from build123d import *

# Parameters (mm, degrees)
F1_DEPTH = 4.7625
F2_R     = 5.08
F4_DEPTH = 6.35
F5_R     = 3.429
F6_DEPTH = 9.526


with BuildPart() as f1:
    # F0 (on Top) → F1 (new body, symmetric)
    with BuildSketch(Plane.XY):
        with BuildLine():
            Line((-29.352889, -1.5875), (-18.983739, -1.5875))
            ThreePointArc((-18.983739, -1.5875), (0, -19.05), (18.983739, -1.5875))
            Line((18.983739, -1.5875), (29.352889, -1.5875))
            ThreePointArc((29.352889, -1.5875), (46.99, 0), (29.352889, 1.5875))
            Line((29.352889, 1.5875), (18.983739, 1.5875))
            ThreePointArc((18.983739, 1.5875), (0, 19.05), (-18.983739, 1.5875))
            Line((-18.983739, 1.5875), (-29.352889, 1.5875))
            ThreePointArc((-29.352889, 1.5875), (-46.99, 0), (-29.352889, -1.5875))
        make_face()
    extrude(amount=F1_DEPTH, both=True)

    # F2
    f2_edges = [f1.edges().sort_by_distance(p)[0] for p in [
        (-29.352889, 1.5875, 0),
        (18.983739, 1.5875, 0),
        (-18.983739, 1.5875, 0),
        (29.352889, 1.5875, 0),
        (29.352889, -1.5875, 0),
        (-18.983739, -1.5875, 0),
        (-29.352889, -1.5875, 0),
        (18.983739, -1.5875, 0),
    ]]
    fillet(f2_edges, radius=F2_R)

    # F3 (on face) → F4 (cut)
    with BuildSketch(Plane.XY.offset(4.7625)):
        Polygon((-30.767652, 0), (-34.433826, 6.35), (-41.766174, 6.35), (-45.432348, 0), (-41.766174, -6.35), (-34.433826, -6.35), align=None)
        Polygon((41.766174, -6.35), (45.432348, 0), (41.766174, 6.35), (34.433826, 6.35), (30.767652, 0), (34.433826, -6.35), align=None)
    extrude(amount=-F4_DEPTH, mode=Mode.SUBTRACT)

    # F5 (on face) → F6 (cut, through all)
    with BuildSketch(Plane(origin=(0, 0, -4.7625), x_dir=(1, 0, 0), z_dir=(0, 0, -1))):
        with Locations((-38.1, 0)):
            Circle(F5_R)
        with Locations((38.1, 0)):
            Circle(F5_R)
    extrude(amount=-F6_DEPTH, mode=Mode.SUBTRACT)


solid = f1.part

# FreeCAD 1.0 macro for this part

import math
import FreeCAD as App
import Part
import Sketcher
Q = App.Units.Quantity


def edges_at(feature, points):
    """Names of the edges that pass closest to the given points."""
    edges = feature.Shape.Edges
    near = lambda p: min(range(len(edges)), key=lambda i: edges[i].distToShape(Part.Vertex(*p))[0])
    return sorted({f"Edge{near(p) + 1}" for p in points})

doc = App.newDocument("Part")
body = doc.addObject("PartDesign::Body", "Body")

sketch1 = body.newObject("Sketcher::SketchObject", "Sketch")
sketch1.AttachmentSupport = (doc.getObject("XY_Plane"), [""])
sketch1.MapMode = "FlatFace"
sketch1.addGeometry(Part.LineSegment(App.Vector(-29.4, -1.6, 0), App.Vector(-19, -1.6, 0)), False)
sketch1.addGeometry(Part.ArcOfCircle(Part.Circle(App.Vector(0, 0, 0), App.Vector(0, 0, 1), 19.1), math.radians(-175), math.radians(-5)), False)
sketch1.addGeometry(Part.LineSegment(App.Vector(19, -1.6, 0), App.Vector(29.4, -1.6, 0)), False)
sketch1.addGeometry(Part.ArcOfCircle(Part.Circle(App.Vector(38.1, 0, 0), App.Vector(0, 0, 1), 8.9), math.radians(-170), math.radians(170)), False)
sketch1.addGeometry(Part.LineSegment(App.Vector(29.4, 1.6, 0), App.Vector(19, 1.6, 0)), False)
sketch1.addGeometry(Part.ArcOfCircle(Part.Circle(App.Vector(0, 0, 0), App.Vector(0, 0, 1), 19.1), math.radians(5), math.radians(175)), False)
sketch1.addGeometry(Part.LineSegment(App.Vector(-19, 1.6, 0), App.Vector(-29.4, 1.6, 0)), False)
sketch1.addGeometry(Part.ArcOfCircle(Part.Circle(App.Vector(-38.1, 0, 0), App.Vector(0, 0, 1), 8.9), math.radians(10), math.radians(350)), False)
sketch1.addConstraint(Sketcher.Constraint("Coincident", 0, 2, 1, 1))
sketch1.addConstraint(Sketcher.Constraint("Coincident", 1, 2, 2, 1))
sketch1.addConstraint(Sketcher.Constraint("Coincident", 2, 2, 3, 1))
sketch1.addConstraint(Sketcher.Constraint("Coincident", 3, 2, 4, 1))
sketch1.addConstraint(Sketcher.Constraint("Coincident", 4, 2, 5, 1))
sketch1.addConstraint(Sketcher.Constraint("Coincident", 5, 2, 6, 1))
sketch1.addConstraint(Sketcher.Constraint("Coincident", 6, 2, 7, 1))
sketch1.addConstraint(Sketcher.Constraint("Coincident", 7, 2, 0, 1))
sketch1.addConstraint(Sketcher.Constraint("Horizontal", 0))
sketch1.addConstraint(Sketcher.Constraint("Horizontal", 2))
sketch1.addConstraint(Sketcher.Constraint("Horizontal", 4))
sketch1.addConstraint(Sketcher.Constraint("Horizontal", 6))
sketch1.addConstraint(Sketcher.Constraint("Coincident", 1, 3, -1, 1))
sketch1.addConstraint(Sketcher.Constraint("Coincident", 5, 3, -1, 1))
sketch1.addConstraint(Sketcher.Constraint("Equal", 1, 5))
sketch1.addConstraint(Sketcher.Constraint("Equal", 3, 7))
sketch1.addConstraint(Sketcher.Constraint("Symmetric", 3, 3, 7, 3, -1, 1))
sketch1.addConstraint(Sketcher.Constraint("Symmetric", 3, 2, 6, 2, -2))
sketch1.addConstraint(Sketcher.Constraint("Horizontal", 0, 2, 1, 2))
sketch1.addConstraint(Sketcher.Constraint("Vertical", 2, 2, 3, 2))
sketch1.addConstraint(Sketcher.Constraint("Radius", 1, Q("0.75 in")))
sketch1.addConstraint(Sketcher.Constraint("Radius", 3, Q("0.35 in")))
sketch1.addConstraint(Sketcher.Constraint("DistanceX", 7, 3, 3, 3, Q("3 in")))
sketch1.addConstraint(Sketcher.Constraint("DistanceY", 0, 2, -1, 1, Q("0.0625 in")))
pad1 = body.newObject("PartDesign::Pad", "Pad")
pad1.Profile = sketch1
pad1.Length = Q("0.375 in")
pad1.Midplane = True
doc.recompute()

fillet = body.newObject("PartDesign::Fillet", "Fillet")
fillet.Base = (pad1, edges_at(pad1, [
    (-29.353, 1.587, 0),
    (18.984, 1.587, 0),
    (-18.984, 1.587, 0),
    (29.353, 1.587, 0),
    (29.353, -1.587, 0),
    (-18.984, -1.587, 0),
    (-29.353, -1.587, 0),
    (18.984, -1.587, 0),
]))
fillet.Radius = Q("0.2 in")

sketch2 = body.newObject("Sketcher::SketchObject", "Sketch001")
sketch2.AttachmentSupport = (doc.getObject("XY_Plane"), [""])
sketch2.MapMode = "FlatFace"
sketch2.AttachmentOffset = App.Placement(App.Vector(0, 0, 0.1875 * 25.4), App.Rotation())
sketch2.addGeometry(Part.LineSegment(App.Vector(-31, 0, 0), App.Vector(-34, 6, 0)), False)
sketch2.addGeometry(Part.LineSegment(App.Vector(-34, 6, 0), App.Vector(-42, 6, 0)), False)
sketch2.addGeometry(Part.LineSegment(App.Vector(-42, 6, 0), App.Vector(-45, 0, 0)), False)
sketch2.addGeometry(Part.LineSegment(App.Vector(-45, 0, 0), App.Vector(-42, -6, 0)), False)
sketch2.addGeometry(Part.LineSegment(App.Vector(-42, -6, 0), App.Vector(-34, -6, 0)), False)
sketch2.addGeometry(Part.LineSegment(App.Vector(-34, -6, 0), App.Vector(-31, 0, 0)), False)
sketch2.addGeometry(Part.LineSegment(App.Vector(42, -6, 0), App.Vector(45, 0, 0)), False)
sketch2.addGeometry(Part.LineSegment(App.Vector(45, 0, 0), App.Vector(42, 6, 0)), False)
sketch2.addGeometry(Part.LineSegment(App.Vector(42, 6, 0), App.Vector(34, 6, 0)), False)
sketch2.addGeometry(Part.LineSegment(App.Vector(34, 6, 0), App.Vector(31, 0, 0)), False)
sketch2.addGeometry(Part.LineSegment(App.Vector(31, 0, 0), App.Vector(34, -6, 0)), False)
sketch2.addGeometry(Part.LineSegment(App.Vector(34, -6, 0), App.Vector(42, -6, 0)), False)
sketch2.addConstraint(Sketcher.Constraint("Coincident", 0, 2, 1, 1))
sketch2.addConstraint(Sketcher.Constraint("Coincident", 1, 2, 2, 1))
sketch2.addConstraint(Sketcher.Constraint("Coincident", 2, 2, 3, 1))
sketch2.addConstraint(Sketcher.Constraint("Coincident", 3, 2, 4, 1))
sketch2.addConstraint(Sketcher.Constraint("Coincident", 4, 2, 5, 1))
sketch2.addConstraint(Sketcher.Constraint("Coincident", 5, 2, 0, 1))
sketch2.addConstraint(Sketcher.Constraint("Coincident", 6, 2, 7, 1))
sketch2.addConstraint(Sketcher.Constraint("Coincident", 7, 2, 8, 1))
sketch2.addConstraint(Sketcher.Constraint("Coincident", 8, 2, 9, 1))
sketch2.addConstraint(Sketcher.Constraint("Coincident", 9, 2, 10, 1))
sketch2.addConstraint(Sketcher.Constraint("Coincident", 10, 2, 11, 1))
sketch2.addConstraint(Sketcher.Constraint("Coincident", 11, 2, 6, 1))
sketch2.addConstraint(Sketcher.Constraint("Horizontal", 1))
sketch2.addConstraint(Sketcher.Constraint("Horizontal", 4))
sketch2.addConstraint(Sketcher.Constraint("Horizontal", 8))
sketch2.addConstraint(Sketcher.Constraint("Horizontal", 11))
sketch2.addConstraint(Sketcher.Constraint("Symmetric", 2, 2, 6, 2, -1, 1))
sketch2.addConstraint(Sketcher.Constraint("Symmetric", 3, 2, 7, 2, -1, 1))
sketch2.addConstraint(Sketcher.Constraint("Symmetric", 5, 2, 9, 2, -1, 1))
sketch2.addConstraint(Sketcher.Constraint("Symmetric", 0, 2, 10, 2, -1, 1))
sketch2.addConstraint(Sketcher.Constraint("Symmetric", 1, 2, 7, 2, -2))
sketch2.addConstraint(Sketcher.Constraint("PointOnObject", 2, 2, -1))
sketch2.addConstraint(Sketcher.Constraint("PointOnObject", 5, 2, -1))
sketch2.addConstraint(Sketcher.Constraint("Parallel", 0, 3))
sketch2.addConstraint(Sketcher.Constraint("Parallel", 2, 5))
sketch2.addConstraint(Sketcher.Constraint("Parallel", 5, 6))
sketch2.addConstraint(Sketcher.Constraint("Parallel", 6, 9))
sketch2.addConstraint(Sketcher.Constraint("Angle", 0, Q("119.999999 deg")))
sketch2.addConstraint(Sketcher.Constraint("DistanceX", 5, 2, 6, 2, Q("3 in")))
sketch2.addConstraint(Sketcher.Constraint("DistanceY", 3, 2, 1, 2, Q("0.5 in")))
sketch2.addConstraint(Sketcher.Constraint("DistanceX", 1, 2, 1, 1, 7.332348))
pocket1 = body.newObject("PartDesign::Pocket", "Pocket")
pocket1.Profile = sketch2
pocket1.Length = Q("0.25 in")

sketch3 = body.newObject("Sketcher::SketchObject", "Sketch002")
sketch3.AttachmentSupport = (doc.getObject("XY_Plane"), [""])
sketch3.MapMode = "FlatFace"
sketch3.AttachmentOffset = App.Placement(App.Vector(0, 0, -0.1875 * 25.4), App.Rotation())
sketch3.addGeometry(Part.Circle(App.Vector(-38.1, 0, 0), App.Vector(0, 0, 1), 3.4), False)
sketch3.addGeometry(Part.Circle(App.Vector(38.1, 0, 0), App.Vector(0, 0, 1), 3.4), False)
sketch3.addConstraint(Sketcher.Constraint("Equal", 0, 1))
sketch3.addConstraint(Sketcher.Constraint("Symmetric", 0, 3, 1, 3, -1, 1))
sketch3.addConstraint(Sketcher.Constraint("PointOnObject", 0, 3, -1))
sketch3.addConstraint(Sketcher.Constraint("Diameter", 0, Q("0.27 in")))
sketch3.addConstraint(Sketcher.Constraint("DistanceX", 0, 3, 1, 3, Q("3 in")))
pocket2 = body.newObject("PartDesign::Pocket", "Pocket001")
pocket2.Profile = sketch3
pocket2.Type = "ThroughAll"
pocket2.Reversed = True

doc.recompute()
